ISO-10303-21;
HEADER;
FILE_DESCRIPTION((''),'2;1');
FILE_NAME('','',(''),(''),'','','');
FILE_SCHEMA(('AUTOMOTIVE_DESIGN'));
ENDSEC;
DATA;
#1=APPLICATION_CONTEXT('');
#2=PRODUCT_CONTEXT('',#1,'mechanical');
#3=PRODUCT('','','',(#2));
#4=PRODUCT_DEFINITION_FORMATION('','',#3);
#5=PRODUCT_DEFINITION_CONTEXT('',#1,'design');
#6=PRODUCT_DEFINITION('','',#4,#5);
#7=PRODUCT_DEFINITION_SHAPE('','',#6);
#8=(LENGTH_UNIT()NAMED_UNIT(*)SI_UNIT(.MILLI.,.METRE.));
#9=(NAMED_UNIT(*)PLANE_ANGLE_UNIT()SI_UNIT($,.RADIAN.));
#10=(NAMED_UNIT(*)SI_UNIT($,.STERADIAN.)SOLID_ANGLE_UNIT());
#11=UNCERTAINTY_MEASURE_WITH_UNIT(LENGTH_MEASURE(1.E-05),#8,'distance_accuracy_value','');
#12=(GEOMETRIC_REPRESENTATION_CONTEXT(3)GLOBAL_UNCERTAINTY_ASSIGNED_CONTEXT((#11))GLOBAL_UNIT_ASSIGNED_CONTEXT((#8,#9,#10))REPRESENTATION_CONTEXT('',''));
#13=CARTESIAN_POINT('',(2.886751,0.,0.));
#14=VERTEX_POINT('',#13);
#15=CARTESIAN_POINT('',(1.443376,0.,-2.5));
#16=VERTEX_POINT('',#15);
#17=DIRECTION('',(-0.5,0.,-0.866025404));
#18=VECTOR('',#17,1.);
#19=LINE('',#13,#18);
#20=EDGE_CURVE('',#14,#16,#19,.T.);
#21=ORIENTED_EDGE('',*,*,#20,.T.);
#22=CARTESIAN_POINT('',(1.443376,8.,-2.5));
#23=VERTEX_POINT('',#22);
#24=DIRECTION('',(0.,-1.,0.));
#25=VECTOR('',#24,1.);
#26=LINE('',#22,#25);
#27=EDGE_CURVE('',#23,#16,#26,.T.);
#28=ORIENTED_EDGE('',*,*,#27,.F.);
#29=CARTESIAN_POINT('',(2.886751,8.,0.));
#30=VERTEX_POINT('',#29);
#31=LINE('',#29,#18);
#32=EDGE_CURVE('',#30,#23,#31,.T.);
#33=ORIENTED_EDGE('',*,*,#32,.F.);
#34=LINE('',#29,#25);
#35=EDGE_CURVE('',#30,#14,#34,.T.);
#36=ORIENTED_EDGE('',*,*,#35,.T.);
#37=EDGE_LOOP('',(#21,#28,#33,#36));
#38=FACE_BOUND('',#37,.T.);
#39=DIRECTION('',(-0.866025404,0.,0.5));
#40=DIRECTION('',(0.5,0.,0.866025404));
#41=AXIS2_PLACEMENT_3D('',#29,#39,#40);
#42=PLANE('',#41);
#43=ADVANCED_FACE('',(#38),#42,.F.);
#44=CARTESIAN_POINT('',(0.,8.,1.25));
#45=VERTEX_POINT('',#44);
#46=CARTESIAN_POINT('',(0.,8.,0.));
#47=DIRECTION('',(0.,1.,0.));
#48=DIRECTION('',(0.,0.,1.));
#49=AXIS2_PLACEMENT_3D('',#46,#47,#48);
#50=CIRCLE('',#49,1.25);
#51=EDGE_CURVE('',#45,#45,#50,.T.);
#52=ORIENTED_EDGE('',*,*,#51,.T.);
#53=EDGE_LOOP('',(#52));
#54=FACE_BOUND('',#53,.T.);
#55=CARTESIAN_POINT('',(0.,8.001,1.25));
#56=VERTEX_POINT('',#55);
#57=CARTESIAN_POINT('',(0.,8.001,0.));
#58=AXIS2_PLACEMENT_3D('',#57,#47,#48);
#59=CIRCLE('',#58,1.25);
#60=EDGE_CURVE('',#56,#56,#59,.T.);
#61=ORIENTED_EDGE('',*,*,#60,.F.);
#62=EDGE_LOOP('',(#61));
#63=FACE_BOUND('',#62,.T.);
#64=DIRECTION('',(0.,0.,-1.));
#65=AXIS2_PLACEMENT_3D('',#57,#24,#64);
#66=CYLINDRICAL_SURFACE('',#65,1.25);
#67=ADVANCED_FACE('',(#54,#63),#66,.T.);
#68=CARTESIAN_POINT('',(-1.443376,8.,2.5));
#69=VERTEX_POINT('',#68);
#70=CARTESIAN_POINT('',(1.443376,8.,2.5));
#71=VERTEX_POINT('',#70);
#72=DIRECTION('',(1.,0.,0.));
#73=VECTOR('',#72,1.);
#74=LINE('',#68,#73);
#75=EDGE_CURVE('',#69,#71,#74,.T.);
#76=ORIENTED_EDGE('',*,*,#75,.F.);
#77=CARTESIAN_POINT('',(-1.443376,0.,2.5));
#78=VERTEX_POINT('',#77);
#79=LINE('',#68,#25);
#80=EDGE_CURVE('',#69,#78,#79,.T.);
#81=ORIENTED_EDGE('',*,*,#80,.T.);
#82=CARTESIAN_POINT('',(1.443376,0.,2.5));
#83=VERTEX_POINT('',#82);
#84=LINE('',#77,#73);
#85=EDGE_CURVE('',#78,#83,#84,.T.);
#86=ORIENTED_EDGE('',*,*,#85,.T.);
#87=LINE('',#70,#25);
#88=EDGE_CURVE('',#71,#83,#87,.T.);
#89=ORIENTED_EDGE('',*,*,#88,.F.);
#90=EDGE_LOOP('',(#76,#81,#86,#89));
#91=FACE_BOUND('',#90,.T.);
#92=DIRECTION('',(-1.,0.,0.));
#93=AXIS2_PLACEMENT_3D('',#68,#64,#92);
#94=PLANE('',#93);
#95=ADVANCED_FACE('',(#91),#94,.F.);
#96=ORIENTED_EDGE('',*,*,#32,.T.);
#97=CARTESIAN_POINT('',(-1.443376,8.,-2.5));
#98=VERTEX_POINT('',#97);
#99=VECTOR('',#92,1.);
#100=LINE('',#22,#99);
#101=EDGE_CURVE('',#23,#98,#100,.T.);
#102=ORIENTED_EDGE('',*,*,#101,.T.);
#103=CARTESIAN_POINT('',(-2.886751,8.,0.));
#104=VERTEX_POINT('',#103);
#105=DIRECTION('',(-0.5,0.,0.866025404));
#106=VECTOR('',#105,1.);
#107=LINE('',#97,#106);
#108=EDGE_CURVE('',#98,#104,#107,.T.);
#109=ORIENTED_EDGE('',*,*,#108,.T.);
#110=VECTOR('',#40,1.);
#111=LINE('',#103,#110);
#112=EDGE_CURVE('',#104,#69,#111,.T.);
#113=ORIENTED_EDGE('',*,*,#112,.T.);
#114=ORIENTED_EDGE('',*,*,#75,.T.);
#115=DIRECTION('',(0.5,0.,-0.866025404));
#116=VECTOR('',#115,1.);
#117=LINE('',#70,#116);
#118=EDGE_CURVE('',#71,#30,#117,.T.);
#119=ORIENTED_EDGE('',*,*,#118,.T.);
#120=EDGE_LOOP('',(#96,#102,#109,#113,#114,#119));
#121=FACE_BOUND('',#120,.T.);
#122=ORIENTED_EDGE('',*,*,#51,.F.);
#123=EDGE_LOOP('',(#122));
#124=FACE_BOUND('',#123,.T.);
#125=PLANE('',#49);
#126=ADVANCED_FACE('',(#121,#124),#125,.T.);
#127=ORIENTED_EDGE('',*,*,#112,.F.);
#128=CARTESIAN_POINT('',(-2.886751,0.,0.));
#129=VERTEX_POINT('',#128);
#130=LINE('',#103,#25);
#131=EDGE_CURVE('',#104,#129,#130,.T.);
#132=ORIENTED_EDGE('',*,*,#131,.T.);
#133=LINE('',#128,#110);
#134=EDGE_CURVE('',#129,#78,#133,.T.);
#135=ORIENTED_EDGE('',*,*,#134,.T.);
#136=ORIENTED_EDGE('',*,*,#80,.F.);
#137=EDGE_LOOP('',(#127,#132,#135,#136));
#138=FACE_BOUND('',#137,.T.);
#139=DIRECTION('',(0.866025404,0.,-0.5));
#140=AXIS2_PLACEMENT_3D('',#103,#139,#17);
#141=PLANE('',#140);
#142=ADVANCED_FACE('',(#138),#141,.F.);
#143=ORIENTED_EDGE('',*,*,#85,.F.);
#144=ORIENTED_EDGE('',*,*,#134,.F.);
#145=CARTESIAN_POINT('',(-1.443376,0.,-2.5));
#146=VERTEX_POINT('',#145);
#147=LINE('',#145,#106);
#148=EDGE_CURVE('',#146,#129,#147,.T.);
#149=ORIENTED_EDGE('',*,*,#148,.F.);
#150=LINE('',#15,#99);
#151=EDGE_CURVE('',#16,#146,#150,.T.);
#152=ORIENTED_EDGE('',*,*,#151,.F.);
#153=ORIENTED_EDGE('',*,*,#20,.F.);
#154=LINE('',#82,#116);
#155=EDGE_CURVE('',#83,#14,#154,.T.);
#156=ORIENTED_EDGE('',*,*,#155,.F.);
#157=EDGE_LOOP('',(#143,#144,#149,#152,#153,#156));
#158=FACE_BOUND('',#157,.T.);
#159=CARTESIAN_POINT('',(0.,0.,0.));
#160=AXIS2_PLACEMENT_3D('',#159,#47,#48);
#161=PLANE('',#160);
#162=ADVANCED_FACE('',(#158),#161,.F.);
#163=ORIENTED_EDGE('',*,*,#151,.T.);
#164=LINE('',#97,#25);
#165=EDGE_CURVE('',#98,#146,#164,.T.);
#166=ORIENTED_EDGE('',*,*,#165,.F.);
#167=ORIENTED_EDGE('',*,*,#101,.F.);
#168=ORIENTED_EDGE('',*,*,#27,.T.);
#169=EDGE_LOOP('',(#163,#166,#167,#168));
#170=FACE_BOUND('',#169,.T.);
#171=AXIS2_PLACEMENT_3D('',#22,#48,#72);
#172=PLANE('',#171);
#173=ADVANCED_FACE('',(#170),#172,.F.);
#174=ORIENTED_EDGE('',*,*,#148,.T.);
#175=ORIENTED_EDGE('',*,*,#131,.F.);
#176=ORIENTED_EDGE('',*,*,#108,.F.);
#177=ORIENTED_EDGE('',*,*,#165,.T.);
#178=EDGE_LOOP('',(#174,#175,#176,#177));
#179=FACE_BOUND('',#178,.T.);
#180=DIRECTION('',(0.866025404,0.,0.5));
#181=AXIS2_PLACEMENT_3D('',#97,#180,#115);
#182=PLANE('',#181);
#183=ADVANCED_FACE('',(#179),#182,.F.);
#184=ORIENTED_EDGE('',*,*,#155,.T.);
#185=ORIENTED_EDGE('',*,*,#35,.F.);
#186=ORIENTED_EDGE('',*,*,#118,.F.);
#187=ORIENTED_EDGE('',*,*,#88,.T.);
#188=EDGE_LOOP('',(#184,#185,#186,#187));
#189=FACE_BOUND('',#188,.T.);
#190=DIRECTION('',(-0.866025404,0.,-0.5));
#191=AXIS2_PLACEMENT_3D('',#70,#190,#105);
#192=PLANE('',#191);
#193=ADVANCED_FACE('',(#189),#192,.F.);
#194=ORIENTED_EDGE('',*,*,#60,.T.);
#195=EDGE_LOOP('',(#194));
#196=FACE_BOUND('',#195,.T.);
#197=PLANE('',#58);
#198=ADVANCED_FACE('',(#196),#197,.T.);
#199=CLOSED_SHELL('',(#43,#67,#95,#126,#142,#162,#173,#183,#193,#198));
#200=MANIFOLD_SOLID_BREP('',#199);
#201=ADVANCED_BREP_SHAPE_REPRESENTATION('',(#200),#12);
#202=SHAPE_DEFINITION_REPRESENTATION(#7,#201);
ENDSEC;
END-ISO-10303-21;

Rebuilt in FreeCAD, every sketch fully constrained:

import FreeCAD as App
import Part
import Sketcher
from FreeCAD import Vector
Q = App.Units.Quantity


def add_polygon(sketch, points):
    """Adds a closed chain of lines whose ends are joined by coincident constraints."""
    first, n = sketch.GeometryCount, len(points)
    for a, b in zip(points, points[1:] + points[:1]):
        sketch.addGeometry(Part.LineSegment(App.Vector(*a, 0), App.Vector(*b, 0)), False)
    for i in range(n):
        sketch.addConstraint(Sketcher.Constraint("Coincident", first + i, 2, first + (i + 1) % n, 1))

doc = App.newDocument("Part")
body = doc.addObject("PartDesign::Body", "Body")

sketch1 = doc.addObject("Sketcher::SketchObject", "Sketch")
body.addObject(sketch1)
sketch1.AttachmentSupport = (doc.XZ_Plane, [""])
sketch1.MapMode = "FlatFace"
add_polygon(sketch1, [(-2.9, 0), (-1.4, 2.5), (1.4, 2.5), (2.9, 0), (1.4, -2.5), (-1.4, -2.5)])
sketch1.addConstraint([
    Sketcher.Constraint("Horizontal", 1),
    Sketcher.Constraint("Horizontal", 4),
    Sketcher.Constraint("Symmetric", 0, 2, 3, 2, -1, 1),
    Sketcher.Constraint("Symmetric", 2, 2, 5, 2, -1, 1),
    Sketcher.Constraint("PointOnObject", 2, 2, -1),
    Sketcher.Constraint("Parallel", 2, 5),
    Sketcher.Constraint("Vertical", 1, 2, 3, 2),
    Sketcher.Constraint("Angle", 0, Q("60 deg")),
    Sketcher.Constraint("DistanceY", 3, 2, 1, 2, Q("5 mm")),
    Sketcher.Constraint("DistanceX", 1, 1, 1, 2, Q("2.886751 mm")),
])
pad1 = doc.addObject("PartDesign::Pad", "Pad")
body.addObject(pad1)
pad1.Profile = sketch1
pad1.Length = 8
pad1.Reversed = True

sketch2 = doc.addObject("Sketcher::SketchObject", "Sketch001")
body.addObject(sketch2)
sketch2.AttachmentSupport = (doc.XZ_Plane, [""])
sketch2.MapMode = "FlatFace"
sketch2.AttachmentOffset = App.Placement(Vector(0, 0, -8), App.Rotation())
sketch2.addGeometry(Part.Circle(Vector(0, 0, 0), Vector(0, 0, 1), 1.2), False)
sketch2.addConstraint([
    Sketcher.Constraint("Coincident", 0, 3, -1, 1),
    Sketcher.Constraint("Diameter", 0, Q("2.5 mm")),
])
pad2 = doc.addObject("PartDesign::Pad", "Pad001")
body.addObject(pad2)
pad2.Profile = sketch2
pad2.Length = 0.001
pad2.Reversed = True

doc.recompute()
